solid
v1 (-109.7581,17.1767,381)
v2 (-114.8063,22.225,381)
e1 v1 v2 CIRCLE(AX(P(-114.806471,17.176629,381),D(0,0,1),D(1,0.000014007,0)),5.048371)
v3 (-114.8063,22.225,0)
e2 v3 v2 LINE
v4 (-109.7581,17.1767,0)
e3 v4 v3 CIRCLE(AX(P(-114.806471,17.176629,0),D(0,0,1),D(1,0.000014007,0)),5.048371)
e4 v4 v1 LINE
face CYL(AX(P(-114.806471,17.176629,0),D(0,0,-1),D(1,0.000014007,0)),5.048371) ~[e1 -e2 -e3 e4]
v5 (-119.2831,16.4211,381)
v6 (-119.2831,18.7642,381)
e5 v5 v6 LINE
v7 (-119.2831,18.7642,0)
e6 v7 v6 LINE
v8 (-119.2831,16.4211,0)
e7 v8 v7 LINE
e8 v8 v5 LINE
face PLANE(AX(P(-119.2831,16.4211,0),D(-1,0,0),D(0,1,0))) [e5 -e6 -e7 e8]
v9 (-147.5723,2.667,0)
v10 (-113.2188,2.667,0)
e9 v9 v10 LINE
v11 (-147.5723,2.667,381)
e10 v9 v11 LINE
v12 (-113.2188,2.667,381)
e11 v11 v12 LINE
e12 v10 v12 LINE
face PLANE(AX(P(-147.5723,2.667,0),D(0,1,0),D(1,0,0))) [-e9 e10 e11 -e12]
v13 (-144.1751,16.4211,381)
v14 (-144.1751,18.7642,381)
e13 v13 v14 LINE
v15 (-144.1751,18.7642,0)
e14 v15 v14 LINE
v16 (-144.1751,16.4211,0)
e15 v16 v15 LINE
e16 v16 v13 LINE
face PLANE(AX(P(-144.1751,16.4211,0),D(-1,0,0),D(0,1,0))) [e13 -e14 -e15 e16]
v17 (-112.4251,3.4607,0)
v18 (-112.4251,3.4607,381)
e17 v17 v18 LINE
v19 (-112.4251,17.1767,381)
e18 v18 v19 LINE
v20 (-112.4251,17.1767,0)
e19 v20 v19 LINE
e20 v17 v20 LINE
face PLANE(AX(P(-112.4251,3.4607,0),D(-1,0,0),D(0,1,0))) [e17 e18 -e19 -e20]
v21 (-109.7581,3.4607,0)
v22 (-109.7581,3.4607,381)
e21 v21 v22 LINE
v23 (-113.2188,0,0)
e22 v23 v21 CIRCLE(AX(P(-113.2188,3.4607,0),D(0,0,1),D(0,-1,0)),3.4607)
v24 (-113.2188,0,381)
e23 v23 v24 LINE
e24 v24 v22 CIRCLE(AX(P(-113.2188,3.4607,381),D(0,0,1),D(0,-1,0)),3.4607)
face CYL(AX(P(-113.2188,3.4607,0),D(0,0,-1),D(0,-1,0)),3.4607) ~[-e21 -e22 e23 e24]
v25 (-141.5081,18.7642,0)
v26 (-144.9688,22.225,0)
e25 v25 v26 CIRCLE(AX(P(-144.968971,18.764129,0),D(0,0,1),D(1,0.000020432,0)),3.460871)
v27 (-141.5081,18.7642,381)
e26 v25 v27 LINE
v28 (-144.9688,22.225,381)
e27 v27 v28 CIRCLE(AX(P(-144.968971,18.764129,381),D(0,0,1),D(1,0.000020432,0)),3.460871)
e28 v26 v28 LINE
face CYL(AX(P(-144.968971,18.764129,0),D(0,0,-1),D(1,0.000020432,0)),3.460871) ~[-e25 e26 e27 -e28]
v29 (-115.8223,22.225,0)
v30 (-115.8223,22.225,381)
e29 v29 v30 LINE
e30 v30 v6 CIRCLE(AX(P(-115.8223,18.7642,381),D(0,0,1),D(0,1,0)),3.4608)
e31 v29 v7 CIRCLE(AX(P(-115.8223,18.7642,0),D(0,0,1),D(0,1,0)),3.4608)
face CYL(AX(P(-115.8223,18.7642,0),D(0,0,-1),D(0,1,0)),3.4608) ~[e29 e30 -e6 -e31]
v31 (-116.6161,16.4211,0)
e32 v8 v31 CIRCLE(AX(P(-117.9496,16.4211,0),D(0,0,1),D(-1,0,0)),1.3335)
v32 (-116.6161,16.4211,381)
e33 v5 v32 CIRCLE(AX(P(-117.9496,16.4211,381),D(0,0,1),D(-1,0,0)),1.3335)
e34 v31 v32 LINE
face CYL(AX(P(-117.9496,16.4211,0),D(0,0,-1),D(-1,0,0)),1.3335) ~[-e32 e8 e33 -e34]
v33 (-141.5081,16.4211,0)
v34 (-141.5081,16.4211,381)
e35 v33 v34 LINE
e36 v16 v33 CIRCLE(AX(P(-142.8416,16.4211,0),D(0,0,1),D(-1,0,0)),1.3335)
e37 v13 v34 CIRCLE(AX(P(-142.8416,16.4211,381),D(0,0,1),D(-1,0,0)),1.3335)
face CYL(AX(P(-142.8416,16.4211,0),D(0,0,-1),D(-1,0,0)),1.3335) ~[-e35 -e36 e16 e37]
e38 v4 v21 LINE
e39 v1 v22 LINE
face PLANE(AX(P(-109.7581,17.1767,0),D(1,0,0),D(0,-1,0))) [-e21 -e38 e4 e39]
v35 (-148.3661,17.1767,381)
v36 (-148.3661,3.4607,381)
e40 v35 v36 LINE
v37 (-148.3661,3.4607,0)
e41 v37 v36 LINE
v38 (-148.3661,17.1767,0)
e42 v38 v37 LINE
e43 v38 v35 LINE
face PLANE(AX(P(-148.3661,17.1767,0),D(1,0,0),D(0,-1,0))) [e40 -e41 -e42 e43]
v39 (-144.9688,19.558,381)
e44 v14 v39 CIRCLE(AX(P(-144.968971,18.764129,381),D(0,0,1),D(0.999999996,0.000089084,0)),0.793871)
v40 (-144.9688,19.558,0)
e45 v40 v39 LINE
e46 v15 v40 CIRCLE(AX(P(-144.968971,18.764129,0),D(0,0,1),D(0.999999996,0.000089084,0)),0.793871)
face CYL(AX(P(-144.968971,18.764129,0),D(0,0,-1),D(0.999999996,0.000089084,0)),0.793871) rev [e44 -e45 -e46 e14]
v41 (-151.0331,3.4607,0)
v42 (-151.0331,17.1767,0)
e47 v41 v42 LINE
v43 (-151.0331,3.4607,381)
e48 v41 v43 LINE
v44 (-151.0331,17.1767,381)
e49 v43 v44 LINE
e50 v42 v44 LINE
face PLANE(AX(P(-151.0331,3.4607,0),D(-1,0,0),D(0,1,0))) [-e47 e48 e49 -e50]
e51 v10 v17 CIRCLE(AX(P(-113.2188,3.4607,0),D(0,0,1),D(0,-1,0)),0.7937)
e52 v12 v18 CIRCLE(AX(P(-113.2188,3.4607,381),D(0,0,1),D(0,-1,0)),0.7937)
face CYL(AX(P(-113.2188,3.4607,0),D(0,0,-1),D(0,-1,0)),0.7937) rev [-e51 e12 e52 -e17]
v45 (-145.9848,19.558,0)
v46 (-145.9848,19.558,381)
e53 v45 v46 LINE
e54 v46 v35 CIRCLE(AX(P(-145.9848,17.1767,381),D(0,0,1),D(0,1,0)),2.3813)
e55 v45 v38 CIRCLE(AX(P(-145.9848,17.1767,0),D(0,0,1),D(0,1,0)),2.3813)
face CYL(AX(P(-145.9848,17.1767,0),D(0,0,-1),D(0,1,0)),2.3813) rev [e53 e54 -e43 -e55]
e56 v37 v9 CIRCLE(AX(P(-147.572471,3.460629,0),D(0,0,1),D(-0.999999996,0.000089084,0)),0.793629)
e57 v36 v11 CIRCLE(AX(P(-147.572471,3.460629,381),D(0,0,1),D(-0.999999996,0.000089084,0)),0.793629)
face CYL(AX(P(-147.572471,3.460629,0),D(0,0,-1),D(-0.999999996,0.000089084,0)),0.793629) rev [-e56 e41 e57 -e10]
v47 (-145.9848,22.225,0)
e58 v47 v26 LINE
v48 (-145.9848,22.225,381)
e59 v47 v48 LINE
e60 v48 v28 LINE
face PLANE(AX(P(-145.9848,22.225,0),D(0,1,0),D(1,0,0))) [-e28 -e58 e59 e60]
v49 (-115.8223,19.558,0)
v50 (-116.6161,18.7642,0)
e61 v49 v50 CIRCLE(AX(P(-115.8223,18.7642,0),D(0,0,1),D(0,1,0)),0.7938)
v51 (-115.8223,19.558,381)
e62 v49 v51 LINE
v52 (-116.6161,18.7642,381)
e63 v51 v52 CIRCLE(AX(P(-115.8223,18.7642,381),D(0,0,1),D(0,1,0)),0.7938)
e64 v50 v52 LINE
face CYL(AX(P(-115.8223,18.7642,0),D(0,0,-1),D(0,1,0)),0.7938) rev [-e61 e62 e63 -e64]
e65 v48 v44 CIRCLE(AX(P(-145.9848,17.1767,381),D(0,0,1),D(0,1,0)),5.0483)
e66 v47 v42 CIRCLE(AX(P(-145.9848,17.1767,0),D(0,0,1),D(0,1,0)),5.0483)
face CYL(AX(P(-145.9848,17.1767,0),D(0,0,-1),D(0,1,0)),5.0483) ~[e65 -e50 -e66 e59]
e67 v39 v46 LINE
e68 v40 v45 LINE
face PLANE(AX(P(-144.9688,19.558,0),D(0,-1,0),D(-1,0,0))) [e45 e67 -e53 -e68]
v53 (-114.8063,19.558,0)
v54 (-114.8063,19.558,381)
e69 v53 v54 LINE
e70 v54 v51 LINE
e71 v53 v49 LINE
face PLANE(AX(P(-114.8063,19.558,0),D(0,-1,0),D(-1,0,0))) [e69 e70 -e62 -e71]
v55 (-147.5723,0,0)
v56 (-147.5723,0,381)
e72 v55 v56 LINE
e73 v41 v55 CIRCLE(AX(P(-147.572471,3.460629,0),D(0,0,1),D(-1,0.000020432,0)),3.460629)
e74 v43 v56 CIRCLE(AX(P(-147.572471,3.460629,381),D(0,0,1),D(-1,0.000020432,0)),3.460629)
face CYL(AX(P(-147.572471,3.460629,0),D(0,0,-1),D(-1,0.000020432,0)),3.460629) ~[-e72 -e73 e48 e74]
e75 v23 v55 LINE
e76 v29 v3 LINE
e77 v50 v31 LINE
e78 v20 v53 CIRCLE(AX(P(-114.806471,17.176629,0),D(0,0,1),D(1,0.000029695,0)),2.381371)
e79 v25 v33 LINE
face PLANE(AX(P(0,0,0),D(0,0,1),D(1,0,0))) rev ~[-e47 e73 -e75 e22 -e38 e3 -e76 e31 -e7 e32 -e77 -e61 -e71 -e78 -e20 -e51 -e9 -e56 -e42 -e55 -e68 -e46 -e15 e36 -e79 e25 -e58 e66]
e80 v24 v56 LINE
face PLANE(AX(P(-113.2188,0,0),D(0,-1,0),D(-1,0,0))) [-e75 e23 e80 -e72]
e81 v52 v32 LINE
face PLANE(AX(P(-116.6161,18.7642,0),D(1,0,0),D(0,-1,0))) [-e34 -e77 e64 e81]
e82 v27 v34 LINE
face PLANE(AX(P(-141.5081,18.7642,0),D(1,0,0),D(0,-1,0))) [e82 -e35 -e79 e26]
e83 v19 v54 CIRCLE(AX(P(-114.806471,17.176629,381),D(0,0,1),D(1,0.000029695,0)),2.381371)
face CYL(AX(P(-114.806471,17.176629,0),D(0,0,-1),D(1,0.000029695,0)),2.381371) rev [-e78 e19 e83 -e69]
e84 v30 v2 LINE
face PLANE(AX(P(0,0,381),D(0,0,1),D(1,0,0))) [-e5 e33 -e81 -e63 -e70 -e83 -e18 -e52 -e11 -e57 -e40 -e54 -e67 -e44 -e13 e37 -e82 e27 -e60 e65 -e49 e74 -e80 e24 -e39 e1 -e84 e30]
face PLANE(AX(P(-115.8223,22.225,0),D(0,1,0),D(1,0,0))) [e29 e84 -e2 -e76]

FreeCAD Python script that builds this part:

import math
import FreeCAD as App
import Part
import Sketcher
Q = App.Units.Quantity

doc = App.newDocument("Part")
params = doc.addObject("Spreadsheet::Sheet", "Params")
for row, (alias, value) in enumerate([
    ("sketch1_radius", "0.031252 in"),
    ("sketch1_radius2", "0.093748 in"),
    ("sketch1_width", "0.04 in"),
    ("sketch1_height", "0.54 in"),
    ("pad1_length", "15 in"),
], start=1):
    params.set(f"A{row}", alias)
    params.set(f"B{row}", "=" + value)
    params.setAlias(f"B{row}", alias)

body = doc.addObject("PartDesign::Body", "Body")

sketch1 = doc.addObject("Sketcher::SketchObject", "Sketch")
body.addObject(sketch1)
sketch1.AttachmentSupport = (doc.XY_Plane, [""])
sketch1.MapMode = "FlatFace"
sketch1.addGeometry([
    Part.LineSegment(App.Vector(-147.5723, 0, 0), App.Vector(-113.2188, 0, 0)),
    Part.ArcOfCircle(Part.Circle(App.Vector(-113.2188, 3.4607, 0), App.Vector(0, 0, 1), 3.4607), math.radians(-90), math.radians(0)),
    Part.LineSegment(App.Vector(-109.7581, 3.4607, 0), App.Vector(-109.7581, 17.1767, 0)),
    Part.ArcOfCircle(Part.Circle(App.Vector(-114.8063, 17.1767, 0), App.Vector(0, 0, 1), 5.0482), math.radians(0), math.radians(90)),
    Part.LineSegment(App.Vector(-114.8063, 22.225, 0), App.Vector(-115.8223, 22.225, 0)),
    Part.ArcOfCircle(Part.Circle(App.Vector(-115.8223, 18.7642, 0), App.Vector(0, 0, 1), 3.4608), math.radians(90), math.radians(180)),
    Part.LineSegment(App.Vector(-119.2831, 18.7642, 0), App.Vector(-119.2831, 16.4211, 0)),
    Part.ArcOfCircle(Part.Circle(App.Vector(-117.9496, 16.4211, 0), App.Vector(0, 0, 1), 1.3335), math.radians(180), math.radians(360)),
    Part.LineSegment(App.Vector(-116.6161, 16.4211, 0), App.Vector(-116.6161, 18.7642, 0)),
    Part.ArcOfCircle(Part.Circle(App.Vector(-115.8223, 18.7642, 0), App.Vector(0, 0, 1), 0.7938), math.radians(90), math.radians(180)),
    Part.LineSegment(App.Vector(-115.8223, 19.558, 0), App.Vector(-114.8063, 19.558, 0)),
    Part.ArcOfCircle(Part.Circle(App.Vector(-114.8063, 17.1767, 0), App.Vector(0, 0, 1), 2.3812), math.radians(0), math.radians(90)),
    Part.LineSegment(App.Vector(-112.4251, 17.1767, 0), App.Vector(-112.4251, 3.4607, 0)),
    Part.ArcOfCircle(Part.Circle(App.Vector(-113.2188, 3.4607, 0), App.Vector(0, 0, 1), 0.7937), math.radians(-90), math.radians(0)),
    Part.LineSegment(App.Vector(-113.2188, 2.667, 0), App.Vector(-147.5723, 2.667, 0)),
    Part.ArcOfCircle(Part.Circle(App.Vector(-147.5723, 3.4607, 0), App.Vector(0, 0, 1), 0.7938), math.radians(180), math.radians(270)),
    Part.LineSegment(App.Vector(-148.3661, 3.4607, 0), App.Vector(-148.3661, 17.1767, 0)),
    Part.ArcOfCircle(Part.Circle(App.Vector(-145.9848, 17.1767, 0), App.Vector(0, 0, 1), 2.3813), math.radians(90), math.radians(180)),
    Part.LineSegment(App.Vector(-145.9848, 19.558, 0), App.Vector(-144.9688, 19.558, 0)),
    Part.ArcOfCircle(Part.Circle(App.Vector(-144.9688, 18.7642, 0), App.Vector(0, 0, 1), 0.7937), math.radians(0), math.radians(90)),
    Part.LineSegment(App.Vector(-144.1751, 18.7642, 0), App.Vector(-144.1751, 16.4211, 0)),
    Part.ArcOfCircle(Part.Circle(App.Vector(-142.8416, 16.4211, 0), App.Vector(0, 0, 1), 1.3335), math.radians(180), math.radians(360)),
    Part.LineSegment(App.Vector(-141.5081, 16.4211, 0), App.Vector(-141.5081, 18.7642, 0)),
    Part.ArcOfCircle(Part.Circle(App.Vector(-144.9688, 18.7642, 0), App.Vector(0, 0, 1), 3.4607), math.radians(0), math.radians(90)),
    Part.LineSegment(App.Vector(-144.9688, 22.225, 0), App.Vector(-145.9848, 22.225, 0)),
    Part.ArcOfCircle(Part.Circle(App.Vector(-145.9848, 17.1767, 0), App.Vector(0, 0, 1), 5.0483), math.radians(90), math.radians(180)),
    Part.LineSegment(App.Vector(-151.0331, 17.1767, 0), App.Vector(-151.0331, 3.4607, 0)),
    Part.ArcOfCircle(Part.Circle(App.Vector(-147.5723, 3.4607, 0), App.Vector(0, 0, 1), 3.4608), math.radians(180), math.radians(270)),
], False)
sketch1.addConstraint([
    Sketcher.Constraint("Tangent", 0, 2, 1, 1),
    Sketcher.Constraint("Tangent", 1, 2, 2, 1),
    Sketcher.Constraint("Tangent", 2, 2, 3, 1),
    Sketcher.Constraint("Tangent", 3, 2, 4, 1),
    Sketcher.Constraint("Tangent", 4, 2, 5, 1),
    Sketcher.Constraint("Tangent", 5, 2, 6, 1),
    Sketcher.Constraint("Tangent", 6, 2, 7, 1),
    Sketcher.Constraint("Tangent", 7, 2, 8, 1),
    Sketcher.Constraint("Tangent", 8, 2, 9, 2),
    Sketcher.Constraint("Tangent", 9, 1, 10, 1),
    Sketcher.Constraint("Tangent", 10, 2, 11, 2),
    Sketcher.Constraint("Tangent", 11, 1, 12, 1),
    Sketcher.Constraint("Tangent", 12, 2, 13, 2),
    Sketcher.Constraint("Tangent", 13, 1, 14, 1),
    Sketcher.Constraint("Tangent", 14, 2, 15, 2),
    Sketcher.Constraint("Tangent", 15, 1, 16, 1),
    Sketcher.Constraint("Tangent", 16, 2, 17, 2),
    Sketcher.Constraint("Tangent", 17, 1, 18, 1),
    Sketcher.Constraint("Tangent", 18, 2, 19, 2),
    Sketcher.Constraint("Tangent", 19, 1, 20, 1),
    Sketcher.Constraint("Tangent", 20, 2, 21, 1),
    Sketcher.Constraint("Tangent", 21, 2, 22, 1),
    Sketcher.Constraint("Tangent", 22, 2, 23, 1),
    Sketcher.Constraint("Tangent", 23, 2, 24, 1),
    Sketcher.Constraint("Tangent", 24, 2, 25, 1),
    Sketcher.Constraint("Tangent", 25, 2, 26, 1),
    Sketcher.Constraint("Tangent", 26, 2, 27, 1),
    Sketcher.Constraint("Tangent", 27, 2, 0, 1),
    Sketcher.Constraint("Horizontal", 0),
    Sketcher.Constraint("Vertical", 2),
    Sketcher.Constraint("Horizontal", 4),
    Sketcher.Constraint("Vertical", 6),
    Sketcher.Constraint("Vertical", 8),
    Sketcher.Constraint("Horizontal", 10),
    Sketcher.Constraint("Vertical", 12),
    Sketcher.Constraint("Horizontal", 14),
    Sketcher.Constraint("Vertical", 16),
    Sketcher.Constraint("Horizontal", 18),
    Sketcher.Constraint("Vertical", 20),
    Sketcher.Constraint("Vertical", 22),
    Sketcher.Constraint("Horizontal", 24),
    Sketcher.Constraint("Vertical", 26),
    Sketcher.Constraint("Coincident", 9, 3, 5, 3),
    Sketcher.Constraint("Coincident", 11, 3, 3, 3),
    Sketcher.Constraint("Coincident", 13, 3, 1, 3),
    Sketcher.Constraint("Coincident", 23, 3, 19, 3),
    Sketcher.Constraint("Coincident", 25, 3, 17, 3),
    Sketcher.Constraint("Coincident", 27, 3, 15, 3),
    Sketcher.Constraint("Equal", 1, 5),
    Sketcher.Constraint("Equal", 13, 15),
    Sketcher.Constraint("Equal", 11, 17),
    Sketcher.Constraint("Equal", 15, 19),
    Sketcher.Constraint("PointOnObject", 0, 2, -1),
    Sketcher.Constraint("Horizontal", 11, 3, 17, 3),
    Sketcher.Constraint("Horizontal", 7, 3, 21, 3),
    Sketcher.Constraint("Equal", 10, 18),
    Sketcher.Constraint("Radius", 9, Q("0.031252 in")),
    Sketcher.Constraint("Radius", 11, Q("0.093748 in")),
    Sketcher.Constraint("DistanceX", 4, 2, 4, 1, Q("0.04 in")),
    Sketcher.Constraint("DistanceY", 2, 1, 2, 2, Q("0.54 in")),
    Sketcher.Constraint("Radius", 7, Q("0.0525 in")),
    Sketcher.Constraint("DistanceX", 15, 3, 5, 3, Q("1.25 in")),
    Sketcher.Constraint("DistanceY", 6, 2, 6, 1, 2.343),
    Sketcher.Constraint("DistanceX", 1, 3, -1, 1, 113.2188),
])
sketch1.setExpression("Constraints[56]", "Params.sketch1_radius")
sketch1.setExpression("Constraints[57]", "Params.sketch1_radius2")
sketch1.setExpression("Constraints[58]", "Params.sketch1_width")
sketch1.setExpression("Constraints[59]", "Params.sketch1_height")
pad1 = doc.addObject("PartDesign::Pad", "Pad")
body.addObject(pad1)
pad1.Profile = sketch1
pad1.setExpression("Length", "Params.pad1_length")

doc.recompute()
